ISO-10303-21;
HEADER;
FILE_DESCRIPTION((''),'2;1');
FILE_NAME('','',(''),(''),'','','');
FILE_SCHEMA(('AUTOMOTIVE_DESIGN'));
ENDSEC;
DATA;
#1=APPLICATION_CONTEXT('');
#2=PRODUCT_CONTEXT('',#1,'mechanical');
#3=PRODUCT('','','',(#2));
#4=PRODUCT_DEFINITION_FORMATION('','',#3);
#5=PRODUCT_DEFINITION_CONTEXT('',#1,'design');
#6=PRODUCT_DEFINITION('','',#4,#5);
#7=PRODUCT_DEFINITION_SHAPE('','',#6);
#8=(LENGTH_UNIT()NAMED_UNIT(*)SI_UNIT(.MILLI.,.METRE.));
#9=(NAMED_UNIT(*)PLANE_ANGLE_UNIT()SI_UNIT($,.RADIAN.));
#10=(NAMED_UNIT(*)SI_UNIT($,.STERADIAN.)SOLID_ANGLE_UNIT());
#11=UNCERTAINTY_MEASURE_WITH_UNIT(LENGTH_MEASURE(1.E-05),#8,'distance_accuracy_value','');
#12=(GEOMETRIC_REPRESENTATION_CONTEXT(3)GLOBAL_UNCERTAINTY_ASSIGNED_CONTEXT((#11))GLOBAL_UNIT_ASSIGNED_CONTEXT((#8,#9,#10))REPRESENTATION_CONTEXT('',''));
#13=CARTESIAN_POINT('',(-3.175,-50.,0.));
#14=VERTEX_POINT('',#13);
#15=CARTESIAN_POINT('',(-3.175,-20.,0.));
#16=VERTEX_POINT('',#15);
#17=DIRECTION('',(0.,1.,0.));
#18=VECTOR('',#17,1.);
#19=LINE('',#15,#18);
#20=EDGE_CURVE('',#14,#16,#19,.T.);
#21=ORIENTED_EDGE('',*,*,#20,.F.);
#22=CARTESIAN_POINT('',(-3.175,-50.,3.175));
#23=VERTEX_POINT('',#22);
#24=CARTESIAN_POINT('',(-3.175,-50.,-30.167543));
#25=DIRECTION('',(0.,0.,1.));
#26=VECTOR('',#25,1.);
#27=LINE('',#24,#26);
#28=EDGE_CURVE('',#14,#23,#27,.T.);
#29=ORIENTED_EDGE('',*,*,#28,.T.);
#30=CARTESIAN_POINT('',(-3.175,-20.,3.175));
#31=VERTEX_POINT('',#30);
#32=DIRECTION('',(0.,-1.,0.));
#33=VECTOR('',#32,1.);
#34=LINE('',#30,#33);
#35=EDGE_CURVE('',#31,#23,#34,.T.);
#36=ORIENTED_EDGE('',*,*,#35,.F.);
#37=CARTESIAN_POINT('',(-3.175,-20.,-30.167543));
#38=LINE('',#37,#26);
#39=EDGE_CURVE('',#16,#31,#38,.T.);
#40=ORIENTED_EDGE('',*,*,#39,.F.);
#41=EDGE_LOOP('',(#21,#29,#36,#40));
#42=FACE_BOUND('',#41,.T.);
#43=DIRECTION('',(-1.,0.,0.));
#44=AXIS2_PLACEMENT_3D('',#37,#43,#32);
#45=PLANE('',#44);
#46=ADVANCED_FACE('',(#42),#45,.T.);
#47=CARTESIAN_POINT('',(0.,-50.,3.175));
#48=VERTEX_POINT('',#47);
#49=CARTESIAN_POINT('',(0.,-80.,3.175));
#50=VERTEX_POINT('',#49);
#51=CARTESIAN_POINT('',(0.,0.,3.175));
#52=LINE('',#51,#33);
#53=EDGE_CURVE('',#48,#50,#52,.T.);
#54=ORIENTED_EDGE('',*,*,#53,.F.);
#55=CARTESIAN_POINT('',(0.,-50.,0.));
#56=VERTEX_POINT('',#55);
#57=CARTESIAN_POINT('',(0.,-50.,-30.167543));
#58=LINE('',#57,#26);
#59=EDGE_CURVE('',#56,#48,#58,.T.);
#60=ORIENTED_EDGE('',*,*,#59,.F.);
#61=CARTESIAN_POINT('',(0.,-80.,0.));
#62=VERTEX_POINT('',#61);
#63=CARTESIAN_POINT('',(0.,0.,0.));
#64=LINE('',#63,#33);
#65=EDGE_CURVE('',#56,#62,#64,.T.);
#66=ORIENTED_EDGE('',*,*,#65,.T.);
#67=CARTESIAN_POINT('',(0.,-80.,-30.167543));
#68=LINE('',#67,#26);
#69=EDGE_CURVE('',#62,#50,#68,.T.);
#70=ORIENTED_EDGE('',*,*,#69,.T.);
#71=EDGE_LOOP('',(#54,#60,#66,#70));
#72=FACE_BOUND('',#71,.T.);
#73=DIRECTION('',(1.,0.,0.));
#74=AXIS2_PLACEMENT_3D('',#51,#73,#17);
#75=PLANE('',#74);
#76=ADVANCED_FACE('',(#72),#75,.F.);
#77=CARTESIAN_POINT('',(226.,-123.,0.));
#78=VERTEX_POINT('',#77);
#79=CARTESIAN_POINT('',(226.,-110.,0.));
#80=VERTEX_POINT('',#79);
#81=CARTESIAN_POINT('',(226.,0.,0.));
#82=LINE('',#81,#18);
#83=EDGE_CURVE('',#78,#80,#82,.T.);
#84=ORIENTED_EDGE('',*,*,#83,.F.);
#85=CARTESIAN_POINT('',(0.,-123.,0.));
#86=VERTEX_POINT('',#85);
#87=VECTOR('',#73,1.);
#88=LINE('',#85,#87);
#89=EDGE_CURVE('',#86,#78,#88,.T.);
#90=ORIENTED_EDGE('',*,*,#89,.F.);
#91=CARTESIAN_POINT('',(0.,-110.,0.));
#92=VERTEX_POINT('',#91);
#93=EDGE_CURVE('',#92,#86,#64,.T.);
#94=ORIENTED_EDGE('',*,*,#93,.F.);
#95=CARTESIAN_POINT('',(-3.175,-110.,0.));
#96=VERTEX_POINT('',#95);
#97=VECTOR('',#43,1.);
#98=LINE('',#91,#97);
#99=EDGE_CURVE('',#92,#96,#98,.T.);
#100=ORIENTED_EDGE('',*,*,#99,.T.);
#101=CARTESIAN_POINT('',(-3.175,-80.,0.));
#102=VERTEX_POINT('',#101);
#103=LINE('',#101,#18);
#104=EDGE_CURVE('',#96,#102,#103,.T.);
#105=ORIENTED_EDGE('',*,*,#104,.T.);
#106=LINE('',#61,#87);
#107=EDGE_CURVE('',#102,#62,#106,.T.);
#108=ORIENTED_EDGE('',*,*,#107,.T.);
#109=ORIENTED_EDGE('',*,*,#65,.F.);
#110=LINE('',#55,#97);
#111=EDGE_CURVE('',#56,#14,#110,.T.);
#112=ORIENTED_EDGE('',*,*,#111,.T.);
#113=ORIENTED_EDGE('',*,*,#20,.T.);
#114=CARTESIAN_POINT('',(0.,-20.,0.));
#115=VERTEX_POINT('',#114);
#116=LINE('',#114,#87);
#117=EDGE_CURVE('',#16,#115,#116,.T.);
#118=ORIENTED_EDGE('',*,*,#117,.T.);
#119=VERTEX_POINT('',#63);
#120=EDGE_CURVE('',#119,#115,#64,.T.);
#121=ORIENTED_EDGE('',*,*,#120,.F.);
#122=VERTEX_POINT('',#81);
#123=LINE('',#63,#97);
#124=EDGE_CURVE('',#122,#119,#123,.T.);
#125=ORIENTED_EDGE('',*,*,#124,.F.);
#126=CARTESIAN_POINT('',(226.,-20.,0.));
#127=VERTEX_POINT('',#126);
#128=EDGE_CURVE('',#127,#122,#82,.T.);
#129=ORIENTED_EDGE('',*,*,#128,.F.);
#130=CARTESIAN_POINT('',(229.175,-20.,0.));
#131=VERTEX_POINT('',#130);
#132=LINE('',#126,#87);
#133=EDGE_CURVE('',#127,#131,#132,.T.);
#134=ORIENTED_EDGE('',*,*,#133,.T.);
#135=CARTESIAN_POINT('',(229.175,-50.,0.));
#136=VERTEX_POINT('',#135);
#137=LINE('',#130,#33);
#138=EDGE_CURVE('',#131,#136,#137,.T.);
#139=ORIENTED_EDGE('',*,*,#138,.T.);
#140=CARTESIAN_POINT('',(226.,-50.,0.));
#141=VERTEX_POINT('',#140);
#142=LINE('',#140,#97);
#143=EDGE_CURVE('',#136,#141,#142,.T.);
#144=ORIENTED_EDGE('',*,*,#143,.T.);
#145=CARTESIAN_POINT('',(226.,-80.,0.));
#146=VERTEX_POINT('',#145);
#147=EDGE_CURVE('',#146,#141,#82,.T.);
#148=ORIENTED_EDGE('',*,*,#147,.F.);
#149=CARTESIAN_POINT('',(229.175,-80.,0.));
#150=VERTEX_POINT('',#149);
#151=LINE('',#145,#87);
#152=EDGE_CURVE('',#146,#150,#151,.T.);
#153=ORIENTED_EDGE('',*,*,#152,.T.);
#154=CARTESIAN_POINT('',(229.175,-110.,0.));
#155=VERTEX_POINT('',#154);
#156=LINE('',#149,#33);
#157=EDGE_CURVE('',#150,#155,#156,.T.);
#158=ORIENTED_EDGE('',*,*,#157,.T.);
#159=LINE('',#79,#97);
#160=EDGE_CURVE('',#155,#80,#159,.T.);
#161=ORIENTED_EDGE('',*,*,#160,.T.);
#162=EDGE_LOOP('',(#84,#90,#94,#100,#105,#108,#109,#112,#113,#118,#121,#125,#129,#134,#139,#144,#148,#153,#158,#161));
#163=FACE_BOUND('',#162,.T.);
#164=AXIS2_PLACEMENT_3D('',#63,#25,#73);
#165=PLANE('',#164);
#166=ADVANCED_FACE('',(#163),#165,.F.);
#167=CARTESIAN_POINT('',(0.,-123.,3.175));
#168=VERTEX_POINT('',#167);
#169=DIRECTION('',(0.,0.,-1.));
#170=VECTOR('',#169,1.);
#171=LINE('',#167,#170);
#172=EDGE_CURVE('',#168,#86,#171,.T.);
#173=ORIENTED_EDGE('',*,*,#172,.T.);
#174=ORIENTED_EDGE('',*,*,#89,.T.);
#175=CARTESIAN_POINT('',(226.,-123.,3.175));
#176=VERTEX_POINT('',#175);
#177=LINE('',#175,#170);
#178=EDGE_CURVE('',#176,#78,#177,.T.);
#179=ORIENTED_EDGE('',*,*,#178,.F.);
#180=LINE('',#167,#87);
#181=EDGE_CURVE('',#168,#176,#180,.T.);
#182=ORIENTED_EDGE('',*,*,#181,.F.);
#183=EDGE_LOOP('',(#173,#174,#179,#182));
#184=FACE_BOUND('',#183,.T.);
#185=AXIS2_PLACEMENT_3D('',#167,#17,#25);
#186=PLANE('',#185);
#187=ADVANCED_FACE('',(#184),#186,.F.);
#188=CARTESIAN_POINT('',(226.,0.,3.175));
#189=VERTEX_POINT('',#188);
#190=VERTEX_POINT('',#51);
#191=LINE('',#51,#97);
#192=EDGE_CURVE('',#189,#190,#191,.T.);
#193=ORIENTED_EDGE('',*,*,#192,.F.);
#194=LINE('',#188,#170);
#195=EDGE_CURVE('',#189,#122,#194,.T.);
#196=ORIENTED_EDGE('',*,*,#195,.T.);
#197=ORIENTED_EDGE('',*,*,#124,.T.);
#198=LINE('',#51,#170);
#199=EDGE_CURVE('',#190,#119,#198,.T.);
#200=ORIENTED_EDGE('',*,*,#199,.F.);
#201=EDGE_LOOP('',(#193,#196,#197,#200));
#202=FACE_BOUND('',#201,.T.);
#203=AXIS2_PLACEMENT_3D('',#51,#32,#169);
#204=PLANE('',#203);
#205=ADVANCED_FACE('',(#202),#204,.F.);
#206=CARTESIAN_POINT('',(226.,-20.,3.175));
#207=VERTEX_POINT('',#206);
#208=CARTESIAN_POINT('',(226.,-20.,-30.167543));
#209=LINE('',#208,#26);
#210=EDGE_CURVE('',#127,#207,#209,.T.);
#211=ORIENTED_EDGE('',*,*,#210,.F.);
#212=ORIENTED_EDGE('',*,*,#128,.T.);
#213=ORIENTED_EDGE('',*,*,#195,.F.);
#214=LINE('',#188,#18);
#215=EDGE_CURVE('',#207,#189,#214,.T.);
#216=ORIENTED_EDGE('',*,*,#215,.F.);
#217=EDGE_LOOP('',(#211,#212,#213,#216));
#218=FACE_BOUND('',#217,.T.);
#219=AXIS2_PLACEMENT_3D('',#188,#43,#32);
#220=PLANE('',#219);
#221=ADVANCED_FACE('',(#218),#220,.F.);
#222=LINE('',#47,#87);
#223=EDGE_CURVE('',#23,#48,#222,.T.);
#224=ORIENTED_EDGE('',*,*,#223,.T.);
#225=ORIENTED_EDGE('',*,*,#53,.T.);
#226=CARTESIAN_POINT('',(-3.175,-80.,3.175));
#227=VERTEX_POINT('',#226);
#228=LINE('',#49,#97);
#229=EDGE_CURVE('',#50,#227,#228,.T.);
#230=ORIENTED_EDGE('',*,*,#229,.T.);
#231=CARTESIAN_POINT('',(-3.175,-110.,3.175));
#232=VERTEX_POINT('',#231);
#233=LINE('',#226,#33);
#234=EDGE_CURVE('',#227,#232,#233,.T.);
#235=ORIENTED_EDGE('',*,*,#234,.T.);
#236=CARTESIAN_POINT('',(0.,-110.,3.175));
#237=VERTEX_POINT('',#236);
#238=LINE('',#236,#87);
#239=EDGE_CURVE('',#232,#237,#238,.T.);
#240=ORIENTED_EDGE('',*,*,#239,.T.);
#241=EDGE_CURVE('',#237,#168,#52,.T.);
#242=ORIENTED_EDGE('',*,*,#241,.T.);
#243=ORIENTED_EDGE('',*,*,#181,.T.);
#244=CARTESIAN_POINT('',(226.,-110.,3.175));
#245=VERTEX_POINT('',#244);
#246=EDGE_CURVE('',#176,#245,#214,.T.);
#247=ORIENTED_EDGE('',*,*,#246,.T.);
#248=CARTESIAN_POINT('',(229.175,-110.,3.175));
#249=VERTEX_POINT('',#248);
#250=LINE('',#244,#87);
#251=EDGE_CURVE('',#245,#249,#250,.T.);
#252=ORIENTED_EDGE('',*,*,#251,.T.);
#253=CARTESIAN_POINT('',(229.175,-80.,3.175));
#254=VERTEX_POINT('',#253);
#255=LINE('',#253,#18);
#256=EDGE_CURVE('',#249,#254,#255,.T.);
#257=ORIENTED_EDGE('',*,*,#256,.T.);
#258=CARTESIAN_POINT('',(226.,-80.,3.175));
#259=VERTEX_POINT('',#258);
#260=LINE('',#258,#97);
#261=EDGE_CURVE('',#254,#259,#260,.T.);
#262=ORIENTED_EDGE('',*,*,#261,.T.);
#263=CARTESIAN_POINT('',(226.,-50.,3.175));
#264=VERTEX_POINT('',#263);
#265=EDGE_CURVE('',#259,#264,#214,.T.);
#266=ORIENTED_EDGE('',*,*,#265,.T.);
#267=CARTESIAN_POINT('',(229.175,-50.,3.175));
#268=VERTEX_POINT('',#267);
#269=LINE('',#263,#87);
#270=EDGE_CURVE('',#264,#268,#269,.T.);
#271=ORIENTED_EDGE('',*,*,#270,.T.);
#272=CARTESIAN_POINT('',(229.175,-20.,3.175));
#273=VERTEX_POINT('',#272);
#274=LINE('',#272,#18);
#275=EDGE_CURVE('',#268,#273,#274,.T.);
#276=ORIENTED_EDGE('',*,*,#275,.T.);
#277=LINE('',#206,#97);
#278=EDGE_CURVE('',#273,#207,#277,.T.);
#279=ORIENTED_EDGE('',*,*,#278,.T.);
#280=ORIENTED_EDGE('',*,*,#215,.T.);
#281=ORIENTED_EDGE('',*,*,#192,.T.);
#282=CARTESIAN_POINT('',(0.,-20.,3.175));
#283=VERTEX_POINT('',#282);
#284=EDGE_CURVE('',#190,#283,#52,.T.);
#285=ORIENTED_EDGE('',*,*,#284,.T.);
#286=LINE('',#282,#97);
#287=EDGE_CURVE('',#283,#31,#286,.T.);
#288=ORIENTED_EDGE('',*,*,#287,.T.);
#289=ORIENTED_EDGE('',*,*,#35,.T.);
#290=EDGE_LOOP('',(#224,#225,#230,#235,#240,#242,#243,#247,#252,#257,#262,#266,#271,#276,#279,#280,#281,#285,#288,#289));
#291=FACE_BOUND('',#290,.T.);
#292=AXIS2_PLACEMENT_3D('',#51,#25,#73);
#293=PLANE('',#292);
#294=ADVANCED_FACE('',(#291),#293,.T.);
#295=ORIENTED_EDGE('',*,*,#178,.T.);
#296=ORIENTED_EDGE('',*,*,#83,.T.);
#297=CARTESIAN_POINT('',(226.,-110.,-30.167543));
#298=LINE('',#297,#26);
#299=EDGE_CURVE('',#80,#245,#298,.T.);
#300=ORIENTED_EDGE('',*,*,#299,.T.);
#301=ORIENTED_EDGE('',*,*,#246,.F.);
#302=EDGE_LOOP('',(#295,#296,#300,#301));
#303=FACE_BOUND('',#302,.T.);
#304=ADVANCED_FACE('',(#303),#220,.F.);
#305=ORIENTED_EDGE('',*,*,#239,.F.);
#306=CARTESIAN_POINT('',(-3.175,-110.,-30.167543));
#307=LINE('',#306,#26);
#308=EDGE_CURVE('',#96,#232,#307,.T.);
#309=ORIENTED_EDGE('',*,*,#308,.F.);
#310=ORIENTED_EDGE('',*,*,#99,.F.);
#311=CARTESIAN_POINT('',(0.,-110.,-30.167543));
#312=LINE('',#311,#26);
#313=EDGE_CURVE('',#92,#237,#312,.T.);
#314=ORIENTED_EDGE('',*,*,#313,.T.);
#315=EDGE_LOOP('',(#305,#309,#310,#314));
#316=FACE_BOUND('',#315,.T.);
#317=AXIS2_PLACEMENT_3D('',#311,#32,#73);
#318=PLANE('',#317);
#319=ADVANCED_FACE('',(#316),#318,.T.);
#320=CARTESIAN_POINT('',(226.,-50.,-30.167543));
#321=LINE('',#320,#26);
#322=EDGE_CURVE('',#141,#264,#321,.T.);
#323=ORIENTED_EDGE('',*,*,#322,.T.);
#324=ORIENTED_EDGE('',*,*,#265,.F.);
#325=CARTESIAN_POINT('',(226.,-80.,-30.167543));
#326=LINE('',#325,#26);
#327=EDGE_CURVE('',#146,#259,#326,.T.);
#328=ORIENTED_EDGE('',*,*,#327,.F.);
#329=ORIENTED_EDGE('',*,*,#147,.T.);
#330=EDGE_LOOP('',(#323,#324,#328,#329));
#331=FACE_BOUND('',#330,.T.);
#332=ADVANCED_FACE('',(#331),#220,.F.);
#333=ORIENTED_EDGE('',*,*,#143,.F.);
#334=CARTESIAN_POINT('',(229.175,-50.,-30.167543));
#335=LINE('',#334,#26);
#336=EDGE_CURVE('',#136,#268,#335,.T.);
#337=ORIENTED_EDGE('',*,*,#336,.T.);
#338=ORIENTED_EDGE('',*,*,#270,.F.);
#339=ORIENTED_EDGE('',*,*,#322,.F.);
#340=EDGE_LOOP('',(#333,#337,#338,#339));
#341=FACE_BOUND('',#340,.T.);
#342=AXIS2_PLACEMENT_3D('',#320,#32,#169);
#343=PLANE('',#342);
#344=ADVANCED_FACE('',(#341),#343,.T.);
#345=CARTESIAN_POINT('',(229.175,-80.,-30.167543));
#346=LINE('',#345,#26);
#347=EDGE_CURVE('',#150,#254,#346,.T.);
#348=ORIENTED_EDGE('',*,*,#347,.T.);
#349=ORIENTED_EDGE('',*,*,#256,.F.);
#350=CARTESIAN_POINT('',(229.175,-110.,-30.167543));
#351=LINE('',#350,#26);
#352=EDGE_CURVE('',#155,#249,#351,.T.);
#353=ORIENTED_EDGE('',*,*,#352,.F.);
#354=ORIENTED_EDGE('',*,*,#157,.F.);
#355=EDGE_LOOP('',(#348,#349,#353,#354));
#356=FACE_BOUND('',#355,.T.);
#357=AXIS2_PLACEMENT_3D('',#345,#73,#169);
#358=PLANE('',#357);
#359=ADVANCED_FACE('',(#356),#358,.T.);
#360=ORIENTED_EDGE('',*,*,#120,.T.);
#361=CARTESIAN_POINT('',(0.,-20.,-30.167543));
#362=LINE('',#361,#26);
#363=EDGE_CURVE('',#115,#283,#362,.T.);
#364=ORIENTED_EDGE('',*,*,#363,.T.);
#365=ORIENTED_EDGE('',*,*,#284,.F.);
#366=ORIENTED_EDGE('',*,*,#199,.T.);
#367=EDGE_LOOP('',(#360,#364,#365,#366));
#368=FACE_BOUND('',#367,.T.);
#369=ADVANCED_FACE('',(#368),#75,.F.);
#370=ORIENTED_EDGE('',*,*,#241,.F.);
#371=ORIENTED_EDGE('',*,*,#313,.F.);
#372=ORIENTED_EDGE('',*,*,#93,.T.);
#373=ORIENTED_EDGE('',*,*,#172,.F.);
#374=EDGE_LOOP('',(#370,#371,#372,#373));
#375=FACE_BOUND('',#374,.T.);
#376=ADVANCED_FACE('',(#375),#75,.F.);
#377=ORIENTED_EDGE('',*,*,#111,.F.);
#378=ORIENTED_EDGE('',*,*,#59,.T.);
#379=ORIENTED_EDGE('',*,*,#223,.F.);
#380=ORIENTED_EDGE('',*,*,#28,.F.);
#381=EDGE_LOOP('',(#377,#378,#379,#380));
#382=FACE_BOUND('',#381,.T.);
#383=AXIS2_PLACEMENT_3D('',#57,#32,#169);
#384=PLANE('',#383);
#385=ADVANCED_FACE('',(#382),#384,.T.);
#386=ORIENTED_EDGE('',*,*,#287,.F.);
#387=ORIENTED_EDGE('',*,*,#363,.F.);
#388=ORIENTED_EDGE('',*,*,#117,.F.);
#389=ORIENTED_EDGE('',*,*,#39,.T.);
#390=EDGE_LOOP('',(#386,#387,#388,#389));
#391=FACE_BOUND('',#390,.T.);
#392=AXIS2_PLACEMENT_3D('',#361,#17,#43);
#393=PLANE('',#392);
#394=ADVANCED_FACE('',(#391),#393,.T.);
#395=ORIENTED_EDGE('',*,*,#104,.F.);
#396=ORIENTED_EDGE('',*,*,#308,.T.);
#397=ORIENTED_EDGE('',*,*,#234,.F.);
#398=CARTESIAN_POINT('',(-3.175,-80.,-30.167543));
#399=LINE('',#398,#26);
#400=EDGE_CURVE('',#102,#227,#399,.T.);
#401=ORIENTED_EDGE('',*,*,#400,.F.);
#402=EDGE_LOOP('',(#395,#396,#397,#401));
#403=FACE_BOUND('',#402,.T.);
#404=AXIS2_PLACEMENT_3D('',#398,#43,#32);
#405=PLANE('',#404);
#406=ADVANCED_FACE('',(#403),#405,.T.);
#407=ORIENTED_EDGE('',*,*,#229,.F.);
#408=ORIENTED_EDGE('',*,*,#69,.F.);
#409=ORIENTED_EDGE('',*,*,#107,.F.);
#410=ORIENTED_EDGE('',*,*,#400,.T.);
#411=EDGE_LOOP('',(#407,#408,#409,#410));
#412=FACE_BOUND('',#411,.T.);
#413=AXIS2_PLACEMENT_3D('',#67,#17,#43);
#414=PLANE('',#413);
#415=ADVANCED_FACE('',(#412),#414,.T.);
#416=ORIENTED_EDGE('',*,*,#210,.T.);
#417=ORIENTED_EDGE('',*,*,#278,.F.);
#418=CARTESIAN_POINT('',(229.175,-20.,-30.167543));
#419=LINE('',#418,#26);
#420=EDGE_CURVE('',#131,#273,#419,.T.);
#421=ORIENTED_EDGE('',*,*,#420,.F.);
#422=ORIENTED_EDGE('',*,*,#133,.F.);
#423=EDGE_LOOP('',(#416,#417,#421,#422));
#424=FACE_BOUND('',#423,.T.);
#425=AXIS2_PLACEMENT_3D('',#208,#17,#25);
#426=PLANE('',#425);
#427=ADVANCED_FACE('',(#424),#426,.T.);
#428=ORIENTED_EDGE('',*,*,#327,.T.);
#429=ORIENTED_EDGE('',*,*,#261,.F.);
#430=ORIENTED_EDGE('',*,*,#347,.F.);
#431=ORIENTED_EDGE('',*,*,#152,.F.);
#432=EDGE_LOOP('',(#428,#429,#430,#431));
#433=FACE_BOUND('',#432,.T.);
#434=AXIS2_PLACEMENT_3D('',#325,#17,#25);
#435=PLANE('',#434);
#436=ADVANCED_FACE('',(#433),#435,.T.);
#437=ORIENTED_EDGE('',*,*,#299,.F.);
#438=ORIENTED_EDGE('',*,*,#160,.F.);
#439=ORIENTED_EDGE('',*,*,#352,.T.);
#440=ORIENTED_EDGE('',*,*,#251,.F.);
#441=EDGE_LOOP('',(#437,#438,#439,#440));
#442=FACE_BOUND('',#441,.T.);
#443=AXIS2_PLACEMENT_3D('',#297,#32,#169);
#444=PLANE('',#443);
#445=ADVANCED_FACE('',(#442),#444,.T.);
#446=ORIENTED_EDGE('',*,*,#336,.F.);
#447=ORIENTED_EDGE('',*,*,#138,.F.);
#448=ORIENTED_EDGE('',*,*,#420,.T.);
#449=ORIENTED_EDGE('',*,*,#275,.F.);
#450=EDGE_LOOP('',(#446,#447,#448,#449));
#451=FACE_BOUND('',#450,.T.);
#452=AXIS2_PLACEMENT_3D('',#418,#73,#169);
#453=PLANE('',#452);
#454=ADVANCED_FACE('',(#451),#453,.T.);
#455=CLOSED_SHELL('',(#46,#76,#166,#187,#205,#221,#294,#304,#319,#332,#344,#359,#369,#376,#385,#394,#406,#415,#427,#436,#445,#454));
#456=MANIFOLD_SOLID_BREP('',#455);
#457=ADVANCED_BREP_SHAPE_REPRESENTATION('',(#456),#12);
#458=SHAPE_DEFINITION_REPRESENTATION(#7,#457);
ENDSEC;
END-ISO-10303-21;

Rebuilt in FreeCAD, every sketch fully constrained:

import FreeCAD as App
import Part
import Sketcher
from FreeCAD import Vector


def add_polygon(sketch, points):
    """Adds a closed chain of lines whose ends are joined by coincident constraints."""
    first, n = sketch.GeometryCount, len(points)
    for a, b in zip(points, points[1:] + points[:1]):
        sketch.addGeometry(Part.LineSegment(App.Vector(*a, 0), App.Vector(*b, 0)), False)
    for i in range(n):
        sketch.addConstraint(Sketcher.Constraint("Coincident", first + i, 2, first + (i + 1) % n, 1))

doc = App.newDocument("Part")
params = doc.addObject("Spreadsheet::Sheet", "Params")
for row, (alias, value) in enumerate([
    ("sketch1_width", "226 mm"),
    ("sketch1_height", "123 mm"),
    ("pad1_length", "3.175 mm"),
    ("sketch2_height", "30 mm"),
    ("pad2_length", "3.175 mm"),
], start=1):
    params.set(f"A{row}", alias)
    params.set(f"B{row}", "=" + value)
    params.setAlias(f"B{row}", alias)

body = doc.addObject("PartDesign::Body", "Body")

# Sketch on XY plane
sketch1 = body.newObject("Sketcher::SketchObject", "Sketch")
sketch1.AttachmentSupport = (doc.getObject("XY_Plane"), [""])
sketch1.MapMode = "FlatFace"
add_polygon(sketch1, [(0, 0), (0, -123), (226, -123), (226, 0)])  # lines 0-3
sketch1.addConstraint(Sketcher.Constraint("Vertical", 0))
sketch1.addConstraint(Sketcher.Constraint("Horizontal", 1))
sketch1.addConstraint(Sketcher.Constraint("Vertical", 2))
sketch1.addConstraint(Sketcher.Constraint("Horizontal", 3))
sketch1.addConstraint(Sketcher.Constraint("Coincident", 3, 2, -1, 1))
sketch1.addConstraint(Sketcher.Constraint("DistanceX", 1, 1, 1, 2, 226.0))
sketch1.addConstraint(Sketcher.Constraint("DistanceY", 0, 2, 0, 1, 123.0))
sketch1.setExpression("Constraints[9]", "Params.sketch1_width")
sketch1.setExpression("Constraints[10]", "Params.sketch1_height")
pad1 = body.newObject("PartDesign::Pad", "Pad")
pad1.Profile = sketch1
pad1.setExpression("Length", "Params.pad1_length")

# Sketch on XY plane
sketch2 = body.newObject("Sketcher::SketchObject", "Sketch001")
sketch2.AttachmentSupport = (doc.getObject("XY_Plane"), [""])
sketch2.MapMode = "FlatFace"
sketch2.AttachmentOffset = App.Placement(Vector(0, 0, 3.175), App.Rotation())
add_polygon(sketch2, [(-3.2, -20), (-3.2, -50), (0, -50), (0, -20)])  # lines 0-3
add_polygon(sketch2, [(226, -20), (226, -50), (229.2, -50), (229.2, -20)])  # lines 4-7
add_polygon(sketch2, [(-3.2, -80), (-3.2, -110), (0, -110), (0, -80)])  # lines 8-11
add_polygon(sketch2, [(226, -80), (226, -110), (229.2, -110), (229.2, -80)])  # lines 12-15
sketch2.addConstraint(Sketcher.Constraint("Vertical", 0))
sketch2.addConstraint(Sketcher.Constraint("Horizontal", 1))
sketch2.addConstraint(Sketcher.Constraint("Vertical", 2))
sketch2.addConstraint(Sketcher.Constraint("Horizontal", 3))
sketch2.addConstraint(Sketcher.Constraint("Vertical", 4))
sketch2.addConstraint(Sketcher.Constraint("Horizontal", 5))
sketch2.addConstraint(Sketcher.Constraint("Vertical", 6))
sketch2.addConstraint(Sketcher.Constraint("Horizontal", 7))
sketch2.addConstraint(Sketcher.Constraint("Vertical", 8))
sketch2.addConstraint(Sketcher.Constraint("Horizontal", 9))
sketch2.addConstraint(Sketcher.Constraint("Vertical", 10))
sketch2.addConstraint(Sketcher.Constraint("Horizontal", 11))
sketch2.addConstraint(Sketcher.Constraint("Vertical", 12))
sketch2.addConstraint(Sketcher.Constraint("Horizontal", 13))
sketch2.addConstraint(Sketcher.Constraint("Vertical", 14))
sketch2.addConstraint(Sketcher.Constraint("Horizontal", 15))
sketch2.addConstraint(Sketcher.Constraint("PointOnObject", 1, 2, -2))
sketch2.addConstraint(Sketcher.Constraint("PointOnObject", 9, 2, -2))
sketch2.addConstraint(Sketcher.Constraint("Horizontal", 1, 2, 4, 2))
sketch2.addConstraint(Sketcher.Constraint("Horizontal", 3, 2, 6, 2))
sketch2.addConstraint(Sketcher.Constraint("Horizontal", 9, 2, 12, 2))
sketch2.addConstraint(Sketcher.Constraint("Horizontal", 11, 2, 14, 2))
sketch2.addConstraint(Sketcher.Constraint("Vertical", 3, 2, 8, 2))
sketch2.addConstraint(Sketcher.Constraint("Vertical", 7, 2, 12, 2))
sketch2.addConstraint(Sketcher.Constraint("Vertical", 6, 2, 13, 2))
sketch2.addConstraint(Sketcher.Constraint("Equal", 3, 5))
sketch2.addConstraint(Sketcher.Constraint("Equal", 6, 8))
sketch2.addConstraint(Sketcher.Constraint("DistanceY", 0, 2, 0, 1, 30.0))
sketch2.addConstraint(Sketcher.Constraint("DistanceY", 0, 2, -1, 1, 50.0))
sketch2.addConstraint(Sketcher.Constraint("DistanceX", -1, 1, 4, 2, 226.0))
sketch2.addConstraint(Sketcher.Constraint("DistanceY", 8, 2, -1, 1, 110.0))
sketch2.addConstraint(Sketcher.Constraint("DistanceX", 1, 1, 1, 2, 3.175))
sketch2.setExpression("Constraints[43]", "Params.sketch2_height")
pad2 = body.newObject("PartDesign::Pad", "Pad001")
pad2.Profile = sketch2
pad2.setExpression("Length", "Params.pad2_length")
pad2.Reversed = True

doc.recompute()
